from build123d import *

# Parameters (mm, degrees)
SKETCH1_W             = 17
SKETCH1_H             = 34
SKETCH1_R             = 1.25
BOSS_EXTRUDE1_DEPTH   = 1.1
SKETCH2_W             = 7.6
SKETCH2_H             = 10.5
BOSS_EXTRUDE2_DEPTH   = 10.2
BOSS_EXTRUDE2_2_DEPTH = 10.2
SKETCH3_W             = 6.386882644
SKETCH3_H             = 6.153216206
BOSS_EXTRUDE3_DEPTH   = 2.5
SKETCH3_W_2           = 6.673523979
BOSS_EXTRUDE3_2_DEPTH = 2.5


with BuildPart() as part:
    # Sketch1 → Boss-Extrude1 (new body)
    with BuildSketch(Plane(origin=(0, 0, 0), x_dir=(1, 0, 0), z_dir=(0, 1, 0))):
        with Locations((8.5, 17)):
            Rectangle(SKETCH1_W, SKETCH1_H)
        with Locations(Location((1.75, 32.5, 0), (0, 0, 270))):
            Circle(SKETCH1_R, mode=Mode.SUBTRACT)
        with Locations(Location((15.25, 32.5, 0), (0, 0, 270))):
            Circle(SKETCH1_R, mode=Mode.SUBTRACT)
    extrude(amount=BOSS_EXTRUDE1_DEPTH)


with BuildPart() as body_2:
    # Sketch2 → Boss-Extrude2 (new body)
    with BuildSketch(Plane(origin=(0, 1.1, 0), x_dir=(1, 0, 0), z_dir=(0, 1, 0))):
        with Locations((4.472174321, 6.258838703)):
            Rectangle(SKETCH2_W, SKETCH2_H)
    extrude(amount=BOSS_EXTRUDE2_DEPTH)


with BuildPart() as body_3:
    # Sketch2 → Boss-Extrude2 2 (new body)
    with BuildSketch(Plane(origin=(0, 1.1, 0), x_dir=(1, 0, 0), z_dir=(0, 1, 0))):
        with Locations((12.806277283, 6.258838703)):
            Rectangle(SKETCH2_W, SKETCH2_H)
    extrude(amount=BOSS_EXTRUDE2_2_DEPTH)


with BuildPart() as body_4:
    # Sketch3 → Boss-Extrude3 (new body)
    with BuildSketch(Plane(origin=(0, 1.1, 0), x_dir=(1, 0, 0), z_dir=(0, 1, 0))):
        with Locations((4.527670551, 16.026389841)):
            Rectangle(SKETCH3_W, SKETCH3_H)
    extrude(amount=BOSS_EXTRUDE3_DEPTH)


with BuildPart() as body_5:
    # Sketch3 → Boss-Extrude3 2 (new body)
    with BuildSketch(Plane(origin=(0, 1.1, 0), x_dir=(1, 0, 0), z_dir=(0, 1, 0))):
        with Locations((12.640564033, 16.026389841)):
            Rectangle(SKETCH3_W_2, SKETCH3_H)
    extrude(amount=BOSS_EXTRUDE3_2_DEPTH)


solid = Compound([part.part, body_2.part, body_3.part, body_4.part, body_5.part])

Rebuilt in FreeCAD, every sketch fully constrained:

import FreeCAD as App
import Part
import Sketcher

V = App.Vector
Q = App.Units.Quantity

doc = App.newDocument("Part")
body = doc.addObject("PartDesign::Body", "Body")

# Sketch on XZ plane
sketch1 = doc.addObject("Sketcher::SketchObject", "Sketch")
body.addObject(sketch1)
sketch1.AttachmentSupport = (doc.XZ_Plane, [""])
sketch1.MapMode = "FlatFace"
sketch1.addGeometry([
    Part.LineSegment(V(0, -34, 0), V(0, 0, 0)),  # 0
    Part.LineSegment(V(0, 0, 0), V(17, 0, 0)),  # 1
    Part.LineSegment(V(17, 0, 0), V(17, -34, 0)),  # 2
    Part.LineSegment(V(17, -34, 0), V(0, -34, 0)),  # 3
    Part.Circle(V(1.8, -32.5, 0), V(0, 0, 1), 1.2),  # 4
    Part.Circle(V(15.2, -32.5, 0), V(0, 0, 1), 1.2),  # 5
], False)
sketch1.addConstraint([
    Sketcher.Constraint("Coincident", 0, 2, 1, 1),
    Sketcher.Constraint("Coincident", 1, 2, 2, 1),
    Sketcher.Constraint("Coincident", 2, 2, 3, 1),
    Sketcher.Constraint("Coincident", 3, 2, 0, 1),
    Sketcher.Constraint("Vertical", 0),
    Sketcher.Constraint("Horizontal", 1),
    Sketcher.Constraint("Vertical", 2),
    Sketcher.Constraint("Horizontal", 3),
    Sketcher.Constraint("Coincident", 0, 2, -1, 1),
    Sketcher.Constraint("Equal", 4, 5),
    Sketcher.Constraint("Horizontal", 4, 3, 5, 3),
    Sketcher.Constraint("Diameter", 4, Q("2.5 mm")),
    Sketcher.Constraint("DistanceX", 1, 1, 1, 2, Q("17 mm")),
    Sketcher.Constraint("DistanceY", 0, 1, 0, 2, Q("34 mm")),
    Sketcher.Constraint("DistanceY", 4, 3, -1, 1, Q("32.5 mm")),
    Sketcher.Constraint("DistanceX", 4, 3, 5, 3, Q("13.5 mm")),
    Sketcher.Constraint("DistanceX", -1, 1, 4, 3, Q("1.75 mm")),
])
pad1 = doc.addObject("PartDesign::Pad", "Pad")
body.addObject(pad1)
pad1.Profile = sketch1
pad1.Length = 1.1
pad1.Reversed = True
body2 = doc.addObject("PartDesign::Body", "Body001")

# Sketch on XZ plane
sketch2 = doc.addObject("Sketcher::SketchObject", "Sketch001")
body2.addObject(sketch2)
sketch2.AttachmentSupport = (doc.getObject("XZ_Plane001"), [""])
sketch2.MapMode = "FlatFace"
sketch2.AttachmentOffset = App.Placement(V(0, 0, -1.1), App.Rotation())
sketch2.addGeometry([
    Part.LineSegment(V(1, -12, 0), V(1, -1, 0)),
    Part.LineSegment(V(1, -1, 0), V(8, -1, 0)),
    Part.LineSegment(V(8, -1, 0), V(8, -12, 0)),
    Part.LineSegment(V(8, -12, 0), V(1, -12, 0)),
], False)
sketch2.addConstraint([
    Sketcher.Constraint("Coincident", 0, 2, 1, 1),
    Sketcher.Constraint("Coincident", 1, 2, 2, 1),
    Sketcher.Constraint("Coincident", 2, 2, 3, 1),
    Sketcher.Constraint("Coincident", 3, 2, 0, 1),
    Sketcher.Constraint("Vertical", 0),
    Sketcher.Constraint("Horizontal", 1),
    Sketcher.Constraint("Vertical", 2),
    Sketcher.Constraint("Horizontal", 3),
    Sketcher.Constraint("DistanceX", 1, 1, 1, 2, Q("7.6 mm")),
    Sketcher.Constraint("DistanceY", 0, 1, 0, 2, Q("10.5 mm")),
    Sketcher.Constraint("DistanceY", 0, 2, -1, 1, Q("1.008839 mm")),
    Sketcher.Constraint("DistanceX", -1, 1, 0, 2, Q("0.672174 mm")),
])
pad2 = doc.addObject("PartDesign::Pad", "Pad001")
body2.addObject(pad2)
pad2.Profile = sketch2
pad2.Length = 10.2
pad2.Reversed = True
body3 = doc.addObject("PartDesign::Body", "Body002")

# Sketch on XZ plane
sketch3 = doc.addObject("Sketcher::SketchObject", "Sketch002")
body3.addObject(sketch3)
sketch3.AttachmentSupport = (doc.getObject("XZ_Plane002"), [""])
sketch3.MapMode = "FlatFace"
sketch3.AttachmentOffset = App.Placement(V(0, 0, -1.1), App.Rotation())
sketch3.addGeometry([
    Part.LineSegment(V(9, -12, 0), V(9, -1, 0)),
    Part.LineSegment(V(9, -1, 0), V(17, -1, 0)),
    Part.LineSegment(V(17, -1, 0), V(17, -12, 0)),
    Part.LineSegment(V(17, -12, 0), V(9, -12, 0)),
], False)
sketch3.addConstraint([
    Sketcher.Constraint("Coincident", 0, 2, 1, 1),
    Sketcher.Constraint("Coincident", 1, 2, 2, 1),
    Sketcher.Constraint("Coincident", 2, 2, 3, 1),
    Sketcher.Constraint("Coincident", 3, 2, 0, 1),
    Sketcher.Constraint("Vertical", 0),
    Sketcher.Constraint("Horizontal", 1),
    Sketcher.Constraint("Vertical", 2),
    Sketcher.Constraint("Horizontal", 3),
    Sketcher.Constraint("DistanceX", 1, 1, 1, 2, Q("7.6 mm")),
    Sketcher.Constraint("DistanceY", 0, 1, 0, 2, Q("10.5 mm")),
    Sketcher.Constraint("DistanceY", 0, 2, -1, 1, Q("1.008839 mm")),
    Sketcher.Constraint("DistanceX", -1, 1, 0, 2, Q("9.006277 mm")),
])
pad3 = doc.addObject("PartDesign::Pad", "Pad002")
body3.addObject(pad3)
pad3.Profile = sketch3
pad3.Length = 10.2
pad3.Reversed = True
body4 = doc.addObject("PartDesign::Body", "Body003")

# Sketch on XZ plane
sketch4 = doc.addObject("Sketcher::SketchObject", "Sketch003")
body4.addObject(sketch4)
sketch4.AttachmentSupport = (doc.getObject("XZ_Plane003"), [""])
sketch4.MapMode = "FlatFace"
sketch4.AttachmentOffset = App.Placement(V(0, 0, -1.1), App.Rotation())
sketch4.addGeometry([
    Part.LineSegment(V(1, -19, 0), V(1, -13, 0)),
    Part.LineSegment(V(1, -13, 0), V(8, -13, 0)),
    Part.LineSegment(V(8, -13, 0), V(8, -19, 0)),
    Part.LineSegment(V(8, -19, 0), V(1, -19, 0)),
], False)
sketch4.addConstraint([
    Sketcher.Constraint("Coincident", 0, 2, 1, 1),
    Sketcher.Constraint("Coincident", 1, 2, 2, 1),
    Sketcher.Constraint("Coincident", 2, 2, 3, 1),
    Sketcher.Constraint("Coincident", 3, 2, 0, 1),
    Sketcher.Constraint("Vertical", 0),
    Sketcher.Constraint("Horizontal", 1),
    Sketcher.Constraint("Vertical", 2),
    Sketcher.Constraint("Horizontal", 3),
    Sketcher.Constraint("DistanceX", 1, 1, 1, 2, Q("6.386883 mm")),
    Sketcher.Constraint("DistanceY", 0, 1, 0, 2, Q("6.153216 mm")),
    Sketcher.Constraint("DistanceX", -1, 1, 0, 2, Q("1.334229 mm")),
    Sketcher.Constraint("DistanceY", 0, 2, -1, 1, Q("12.949782 mm")),
])
pad4 = doc.addObject("PartDesign::Pad", "Pad003")
body4.addObject(pad4)
pad4.Profile = sketch4
pad4.Length = 2.5
pad4.Reversed = True
body5 = doc.addObject("PartDesign::Body", "Body004")

# Sketch on XZ plane
sketch5 = doc.addObject("Sketcher::SketchObject", "Sketch004")
body5.addObject(sketch5)
sketch5.AttachmentSupport = (doc.getObject("XZ_Plane004"), [""])
sketch5.MapMode = "FlatFace"
sketch5.AttachmentOffset = App.Placement(V(0, 0, -1.1), App.Rotation())
sketch5.addGeometry([
    Part.LineSegment(V(9, -19, 0), V(9, -13, 0)),
    Part.LineSegment(V(9, -13, 0), V(16, -13, 0)),
    Part.LineSegment(V(16, -13, 0), V(16, -19, 0)),
    Part.LineSegment(V(16, -19, 0), V(9, -19, 0)),
], False)
sketch5.addConstraint([
    Sketcher.Constraint("Coincident", 0, 2, 1, 1),
    Sketcher.Constraint("Coincident", 1, 2, 2, 1),
    Sketcher.Constraint("Coincident", 2, 2, 3, 1),
    Sketcher.Constraint("Coincident", 3, 2, 0, 1),
    Sketcher.Constraint("Vertical", 0),
    Sketcher.Constraint("Horizontal", 1),
    Sketcher.Constraint("Vertical", 2),
    Sketcher.Constraint("Horizontal", 3),
    Sketcher.Constraint("DistanceX", 1, 1, 1, 2, Q("6.673524 mm")),
    Sketcher.Constraint("DistanceY", 0, 1, 0, 2, Q("6.153216 mm")),
    Sketcher.Constraint("DistanceY", 0, 2, -1, 1, Q("12.949782 mm")),
    Sketcher.Constraint("DistanceX", -1, 1, 0, 2, Q("9.303802 mm")),
])
pad5 = doc.addObject("PartDesign::Pad", "Pad004")
body5.addObject(pad5)
pad5.Profile = sketch5
pad5.Length = 2.5
pad5.Reversed = True

doc.recompute()
